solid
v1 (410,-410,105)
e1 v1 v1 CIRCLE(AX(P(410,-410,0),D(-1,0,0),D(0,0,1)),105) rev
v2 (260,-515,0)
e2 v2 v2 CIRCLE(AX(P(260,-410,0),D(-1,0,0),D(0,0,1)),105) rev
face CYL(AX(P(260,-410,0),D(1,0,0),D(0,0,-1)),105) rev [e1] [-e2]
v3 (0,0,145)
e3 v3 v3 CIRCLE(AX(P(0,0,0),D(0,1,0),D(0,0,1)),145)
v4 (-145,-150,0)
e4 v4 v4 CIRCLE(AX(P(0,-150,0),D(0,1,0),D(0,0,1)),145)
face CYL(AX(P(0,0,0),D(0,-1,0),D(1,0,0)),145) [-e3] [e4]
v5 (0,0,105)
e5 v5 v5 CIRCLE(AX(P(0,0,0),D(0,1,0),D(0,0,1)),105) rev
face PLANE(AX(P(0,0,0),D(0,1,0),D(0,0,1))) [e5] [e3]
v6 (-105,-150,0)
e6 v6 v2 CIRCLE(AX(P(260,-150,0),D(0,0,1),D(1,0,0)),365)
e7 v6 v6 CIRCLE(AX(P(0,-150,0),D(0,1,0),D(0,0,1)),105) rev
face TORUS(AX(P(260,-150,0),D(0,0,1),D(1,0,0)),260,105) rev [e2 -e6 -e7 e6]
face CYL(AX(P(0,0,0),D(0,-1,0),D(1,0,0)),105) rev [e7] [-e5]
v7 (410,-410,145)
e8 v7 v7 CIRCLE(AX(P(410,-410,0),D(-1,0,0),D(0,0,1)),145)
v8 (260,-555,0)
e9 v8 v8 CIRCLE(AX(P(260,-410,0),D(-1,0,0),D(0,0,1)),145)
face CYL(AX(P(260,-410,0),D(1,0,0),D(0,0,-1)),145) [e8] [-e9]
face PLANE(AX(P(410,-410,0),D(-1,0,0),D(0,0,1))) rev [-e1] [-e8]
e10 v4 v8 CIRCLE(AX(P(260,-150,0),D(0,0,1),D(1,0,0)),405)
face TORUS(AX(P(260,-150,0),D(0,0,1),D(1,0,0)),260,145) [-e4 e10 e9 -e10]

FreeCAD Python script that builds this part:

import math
import FreeCAD as App
import Part
import Sketcher

V = App.Vector
Q = App.Units.Quantity

doc = App.newDocument("Part")
body = doc.addObject("PartDesign::Body", "Body")

# Sketch on XZ plane
sketch1 = body.newObject("Sketcher::SketchObject", "Sketch")
sketch1.AttachmentSupport = (doc.getObject("XZ_Plane"), [""])
sketch1.MapMode = "FlatFace"
sketch1.addGeometry([
    Part.Circle(V(0, 0, 0), V(0, 0, 1), 145),
    Part.Circle(V(0, 0, 0), V(0, 0, 1), 105),
], False)
sketch1.addConstraint([
    Sketcher.Constraint("Coincident", 0, 3, -1, 1),
    Sketcher.Constraint("Coincident", 1, 3, -1, 1),
    Sketcher.Constraint("Diameter", 0, Q("290 mm")),
    Sketcher.Constraint("Diameter", 1, Q("210 mm")),
])

# Sketch on XY plane
sketch2 = body.newObject("Sketcher::SketchObject", "Sketch001")
sketch2.AttachmentSupport = (doc.getObject("XY_Plane"), [""])
sketch2.MapMode = "FlatFace"
sketch2.addGeometry([
    Part.LineSegment(V(0, 0, 0), V(0, -150, 0)),
    Part.ArcOfCircle(Part.Circle(V(260, -150, 0), V(0, 0, 1), 260), math.radians(180), math.radians(270)),
    Part.LineSegment(V(260, -410, 0), V(410, -410, 0)),
], False)
sketch2.addConstraint([
    Sketcher.Constraint("Tangent", 0, 2, 1, 1),
    Sketcher.Constraint("Tangent", 1, 2, 2, 1),
    Sketcher.Constraint("Vertical", 0),
    Sketcher.Constraint("Horizontal", 2),
    Sketcher.Constraint("Coincident", 0, 1, -1, 1),
    Sketcher.Constraint("Equal", 2, 0),
    Sketcher.Constraint("Radius", 1, Q("260 mm")),
    Sketcher.Constraint("DistanceX", 2, 1, 2, 2, Q("150 mm")),
])
doc.recompute()

additivepipe = body.newObject("PartDesign::AdditivePipe", "AdditivePipe")
additivepipe.Profile = sketch1
additivepipe.Spine = (sketch2, ["Edge1", "Edge2", "Edge3"])

doc.recompute()
